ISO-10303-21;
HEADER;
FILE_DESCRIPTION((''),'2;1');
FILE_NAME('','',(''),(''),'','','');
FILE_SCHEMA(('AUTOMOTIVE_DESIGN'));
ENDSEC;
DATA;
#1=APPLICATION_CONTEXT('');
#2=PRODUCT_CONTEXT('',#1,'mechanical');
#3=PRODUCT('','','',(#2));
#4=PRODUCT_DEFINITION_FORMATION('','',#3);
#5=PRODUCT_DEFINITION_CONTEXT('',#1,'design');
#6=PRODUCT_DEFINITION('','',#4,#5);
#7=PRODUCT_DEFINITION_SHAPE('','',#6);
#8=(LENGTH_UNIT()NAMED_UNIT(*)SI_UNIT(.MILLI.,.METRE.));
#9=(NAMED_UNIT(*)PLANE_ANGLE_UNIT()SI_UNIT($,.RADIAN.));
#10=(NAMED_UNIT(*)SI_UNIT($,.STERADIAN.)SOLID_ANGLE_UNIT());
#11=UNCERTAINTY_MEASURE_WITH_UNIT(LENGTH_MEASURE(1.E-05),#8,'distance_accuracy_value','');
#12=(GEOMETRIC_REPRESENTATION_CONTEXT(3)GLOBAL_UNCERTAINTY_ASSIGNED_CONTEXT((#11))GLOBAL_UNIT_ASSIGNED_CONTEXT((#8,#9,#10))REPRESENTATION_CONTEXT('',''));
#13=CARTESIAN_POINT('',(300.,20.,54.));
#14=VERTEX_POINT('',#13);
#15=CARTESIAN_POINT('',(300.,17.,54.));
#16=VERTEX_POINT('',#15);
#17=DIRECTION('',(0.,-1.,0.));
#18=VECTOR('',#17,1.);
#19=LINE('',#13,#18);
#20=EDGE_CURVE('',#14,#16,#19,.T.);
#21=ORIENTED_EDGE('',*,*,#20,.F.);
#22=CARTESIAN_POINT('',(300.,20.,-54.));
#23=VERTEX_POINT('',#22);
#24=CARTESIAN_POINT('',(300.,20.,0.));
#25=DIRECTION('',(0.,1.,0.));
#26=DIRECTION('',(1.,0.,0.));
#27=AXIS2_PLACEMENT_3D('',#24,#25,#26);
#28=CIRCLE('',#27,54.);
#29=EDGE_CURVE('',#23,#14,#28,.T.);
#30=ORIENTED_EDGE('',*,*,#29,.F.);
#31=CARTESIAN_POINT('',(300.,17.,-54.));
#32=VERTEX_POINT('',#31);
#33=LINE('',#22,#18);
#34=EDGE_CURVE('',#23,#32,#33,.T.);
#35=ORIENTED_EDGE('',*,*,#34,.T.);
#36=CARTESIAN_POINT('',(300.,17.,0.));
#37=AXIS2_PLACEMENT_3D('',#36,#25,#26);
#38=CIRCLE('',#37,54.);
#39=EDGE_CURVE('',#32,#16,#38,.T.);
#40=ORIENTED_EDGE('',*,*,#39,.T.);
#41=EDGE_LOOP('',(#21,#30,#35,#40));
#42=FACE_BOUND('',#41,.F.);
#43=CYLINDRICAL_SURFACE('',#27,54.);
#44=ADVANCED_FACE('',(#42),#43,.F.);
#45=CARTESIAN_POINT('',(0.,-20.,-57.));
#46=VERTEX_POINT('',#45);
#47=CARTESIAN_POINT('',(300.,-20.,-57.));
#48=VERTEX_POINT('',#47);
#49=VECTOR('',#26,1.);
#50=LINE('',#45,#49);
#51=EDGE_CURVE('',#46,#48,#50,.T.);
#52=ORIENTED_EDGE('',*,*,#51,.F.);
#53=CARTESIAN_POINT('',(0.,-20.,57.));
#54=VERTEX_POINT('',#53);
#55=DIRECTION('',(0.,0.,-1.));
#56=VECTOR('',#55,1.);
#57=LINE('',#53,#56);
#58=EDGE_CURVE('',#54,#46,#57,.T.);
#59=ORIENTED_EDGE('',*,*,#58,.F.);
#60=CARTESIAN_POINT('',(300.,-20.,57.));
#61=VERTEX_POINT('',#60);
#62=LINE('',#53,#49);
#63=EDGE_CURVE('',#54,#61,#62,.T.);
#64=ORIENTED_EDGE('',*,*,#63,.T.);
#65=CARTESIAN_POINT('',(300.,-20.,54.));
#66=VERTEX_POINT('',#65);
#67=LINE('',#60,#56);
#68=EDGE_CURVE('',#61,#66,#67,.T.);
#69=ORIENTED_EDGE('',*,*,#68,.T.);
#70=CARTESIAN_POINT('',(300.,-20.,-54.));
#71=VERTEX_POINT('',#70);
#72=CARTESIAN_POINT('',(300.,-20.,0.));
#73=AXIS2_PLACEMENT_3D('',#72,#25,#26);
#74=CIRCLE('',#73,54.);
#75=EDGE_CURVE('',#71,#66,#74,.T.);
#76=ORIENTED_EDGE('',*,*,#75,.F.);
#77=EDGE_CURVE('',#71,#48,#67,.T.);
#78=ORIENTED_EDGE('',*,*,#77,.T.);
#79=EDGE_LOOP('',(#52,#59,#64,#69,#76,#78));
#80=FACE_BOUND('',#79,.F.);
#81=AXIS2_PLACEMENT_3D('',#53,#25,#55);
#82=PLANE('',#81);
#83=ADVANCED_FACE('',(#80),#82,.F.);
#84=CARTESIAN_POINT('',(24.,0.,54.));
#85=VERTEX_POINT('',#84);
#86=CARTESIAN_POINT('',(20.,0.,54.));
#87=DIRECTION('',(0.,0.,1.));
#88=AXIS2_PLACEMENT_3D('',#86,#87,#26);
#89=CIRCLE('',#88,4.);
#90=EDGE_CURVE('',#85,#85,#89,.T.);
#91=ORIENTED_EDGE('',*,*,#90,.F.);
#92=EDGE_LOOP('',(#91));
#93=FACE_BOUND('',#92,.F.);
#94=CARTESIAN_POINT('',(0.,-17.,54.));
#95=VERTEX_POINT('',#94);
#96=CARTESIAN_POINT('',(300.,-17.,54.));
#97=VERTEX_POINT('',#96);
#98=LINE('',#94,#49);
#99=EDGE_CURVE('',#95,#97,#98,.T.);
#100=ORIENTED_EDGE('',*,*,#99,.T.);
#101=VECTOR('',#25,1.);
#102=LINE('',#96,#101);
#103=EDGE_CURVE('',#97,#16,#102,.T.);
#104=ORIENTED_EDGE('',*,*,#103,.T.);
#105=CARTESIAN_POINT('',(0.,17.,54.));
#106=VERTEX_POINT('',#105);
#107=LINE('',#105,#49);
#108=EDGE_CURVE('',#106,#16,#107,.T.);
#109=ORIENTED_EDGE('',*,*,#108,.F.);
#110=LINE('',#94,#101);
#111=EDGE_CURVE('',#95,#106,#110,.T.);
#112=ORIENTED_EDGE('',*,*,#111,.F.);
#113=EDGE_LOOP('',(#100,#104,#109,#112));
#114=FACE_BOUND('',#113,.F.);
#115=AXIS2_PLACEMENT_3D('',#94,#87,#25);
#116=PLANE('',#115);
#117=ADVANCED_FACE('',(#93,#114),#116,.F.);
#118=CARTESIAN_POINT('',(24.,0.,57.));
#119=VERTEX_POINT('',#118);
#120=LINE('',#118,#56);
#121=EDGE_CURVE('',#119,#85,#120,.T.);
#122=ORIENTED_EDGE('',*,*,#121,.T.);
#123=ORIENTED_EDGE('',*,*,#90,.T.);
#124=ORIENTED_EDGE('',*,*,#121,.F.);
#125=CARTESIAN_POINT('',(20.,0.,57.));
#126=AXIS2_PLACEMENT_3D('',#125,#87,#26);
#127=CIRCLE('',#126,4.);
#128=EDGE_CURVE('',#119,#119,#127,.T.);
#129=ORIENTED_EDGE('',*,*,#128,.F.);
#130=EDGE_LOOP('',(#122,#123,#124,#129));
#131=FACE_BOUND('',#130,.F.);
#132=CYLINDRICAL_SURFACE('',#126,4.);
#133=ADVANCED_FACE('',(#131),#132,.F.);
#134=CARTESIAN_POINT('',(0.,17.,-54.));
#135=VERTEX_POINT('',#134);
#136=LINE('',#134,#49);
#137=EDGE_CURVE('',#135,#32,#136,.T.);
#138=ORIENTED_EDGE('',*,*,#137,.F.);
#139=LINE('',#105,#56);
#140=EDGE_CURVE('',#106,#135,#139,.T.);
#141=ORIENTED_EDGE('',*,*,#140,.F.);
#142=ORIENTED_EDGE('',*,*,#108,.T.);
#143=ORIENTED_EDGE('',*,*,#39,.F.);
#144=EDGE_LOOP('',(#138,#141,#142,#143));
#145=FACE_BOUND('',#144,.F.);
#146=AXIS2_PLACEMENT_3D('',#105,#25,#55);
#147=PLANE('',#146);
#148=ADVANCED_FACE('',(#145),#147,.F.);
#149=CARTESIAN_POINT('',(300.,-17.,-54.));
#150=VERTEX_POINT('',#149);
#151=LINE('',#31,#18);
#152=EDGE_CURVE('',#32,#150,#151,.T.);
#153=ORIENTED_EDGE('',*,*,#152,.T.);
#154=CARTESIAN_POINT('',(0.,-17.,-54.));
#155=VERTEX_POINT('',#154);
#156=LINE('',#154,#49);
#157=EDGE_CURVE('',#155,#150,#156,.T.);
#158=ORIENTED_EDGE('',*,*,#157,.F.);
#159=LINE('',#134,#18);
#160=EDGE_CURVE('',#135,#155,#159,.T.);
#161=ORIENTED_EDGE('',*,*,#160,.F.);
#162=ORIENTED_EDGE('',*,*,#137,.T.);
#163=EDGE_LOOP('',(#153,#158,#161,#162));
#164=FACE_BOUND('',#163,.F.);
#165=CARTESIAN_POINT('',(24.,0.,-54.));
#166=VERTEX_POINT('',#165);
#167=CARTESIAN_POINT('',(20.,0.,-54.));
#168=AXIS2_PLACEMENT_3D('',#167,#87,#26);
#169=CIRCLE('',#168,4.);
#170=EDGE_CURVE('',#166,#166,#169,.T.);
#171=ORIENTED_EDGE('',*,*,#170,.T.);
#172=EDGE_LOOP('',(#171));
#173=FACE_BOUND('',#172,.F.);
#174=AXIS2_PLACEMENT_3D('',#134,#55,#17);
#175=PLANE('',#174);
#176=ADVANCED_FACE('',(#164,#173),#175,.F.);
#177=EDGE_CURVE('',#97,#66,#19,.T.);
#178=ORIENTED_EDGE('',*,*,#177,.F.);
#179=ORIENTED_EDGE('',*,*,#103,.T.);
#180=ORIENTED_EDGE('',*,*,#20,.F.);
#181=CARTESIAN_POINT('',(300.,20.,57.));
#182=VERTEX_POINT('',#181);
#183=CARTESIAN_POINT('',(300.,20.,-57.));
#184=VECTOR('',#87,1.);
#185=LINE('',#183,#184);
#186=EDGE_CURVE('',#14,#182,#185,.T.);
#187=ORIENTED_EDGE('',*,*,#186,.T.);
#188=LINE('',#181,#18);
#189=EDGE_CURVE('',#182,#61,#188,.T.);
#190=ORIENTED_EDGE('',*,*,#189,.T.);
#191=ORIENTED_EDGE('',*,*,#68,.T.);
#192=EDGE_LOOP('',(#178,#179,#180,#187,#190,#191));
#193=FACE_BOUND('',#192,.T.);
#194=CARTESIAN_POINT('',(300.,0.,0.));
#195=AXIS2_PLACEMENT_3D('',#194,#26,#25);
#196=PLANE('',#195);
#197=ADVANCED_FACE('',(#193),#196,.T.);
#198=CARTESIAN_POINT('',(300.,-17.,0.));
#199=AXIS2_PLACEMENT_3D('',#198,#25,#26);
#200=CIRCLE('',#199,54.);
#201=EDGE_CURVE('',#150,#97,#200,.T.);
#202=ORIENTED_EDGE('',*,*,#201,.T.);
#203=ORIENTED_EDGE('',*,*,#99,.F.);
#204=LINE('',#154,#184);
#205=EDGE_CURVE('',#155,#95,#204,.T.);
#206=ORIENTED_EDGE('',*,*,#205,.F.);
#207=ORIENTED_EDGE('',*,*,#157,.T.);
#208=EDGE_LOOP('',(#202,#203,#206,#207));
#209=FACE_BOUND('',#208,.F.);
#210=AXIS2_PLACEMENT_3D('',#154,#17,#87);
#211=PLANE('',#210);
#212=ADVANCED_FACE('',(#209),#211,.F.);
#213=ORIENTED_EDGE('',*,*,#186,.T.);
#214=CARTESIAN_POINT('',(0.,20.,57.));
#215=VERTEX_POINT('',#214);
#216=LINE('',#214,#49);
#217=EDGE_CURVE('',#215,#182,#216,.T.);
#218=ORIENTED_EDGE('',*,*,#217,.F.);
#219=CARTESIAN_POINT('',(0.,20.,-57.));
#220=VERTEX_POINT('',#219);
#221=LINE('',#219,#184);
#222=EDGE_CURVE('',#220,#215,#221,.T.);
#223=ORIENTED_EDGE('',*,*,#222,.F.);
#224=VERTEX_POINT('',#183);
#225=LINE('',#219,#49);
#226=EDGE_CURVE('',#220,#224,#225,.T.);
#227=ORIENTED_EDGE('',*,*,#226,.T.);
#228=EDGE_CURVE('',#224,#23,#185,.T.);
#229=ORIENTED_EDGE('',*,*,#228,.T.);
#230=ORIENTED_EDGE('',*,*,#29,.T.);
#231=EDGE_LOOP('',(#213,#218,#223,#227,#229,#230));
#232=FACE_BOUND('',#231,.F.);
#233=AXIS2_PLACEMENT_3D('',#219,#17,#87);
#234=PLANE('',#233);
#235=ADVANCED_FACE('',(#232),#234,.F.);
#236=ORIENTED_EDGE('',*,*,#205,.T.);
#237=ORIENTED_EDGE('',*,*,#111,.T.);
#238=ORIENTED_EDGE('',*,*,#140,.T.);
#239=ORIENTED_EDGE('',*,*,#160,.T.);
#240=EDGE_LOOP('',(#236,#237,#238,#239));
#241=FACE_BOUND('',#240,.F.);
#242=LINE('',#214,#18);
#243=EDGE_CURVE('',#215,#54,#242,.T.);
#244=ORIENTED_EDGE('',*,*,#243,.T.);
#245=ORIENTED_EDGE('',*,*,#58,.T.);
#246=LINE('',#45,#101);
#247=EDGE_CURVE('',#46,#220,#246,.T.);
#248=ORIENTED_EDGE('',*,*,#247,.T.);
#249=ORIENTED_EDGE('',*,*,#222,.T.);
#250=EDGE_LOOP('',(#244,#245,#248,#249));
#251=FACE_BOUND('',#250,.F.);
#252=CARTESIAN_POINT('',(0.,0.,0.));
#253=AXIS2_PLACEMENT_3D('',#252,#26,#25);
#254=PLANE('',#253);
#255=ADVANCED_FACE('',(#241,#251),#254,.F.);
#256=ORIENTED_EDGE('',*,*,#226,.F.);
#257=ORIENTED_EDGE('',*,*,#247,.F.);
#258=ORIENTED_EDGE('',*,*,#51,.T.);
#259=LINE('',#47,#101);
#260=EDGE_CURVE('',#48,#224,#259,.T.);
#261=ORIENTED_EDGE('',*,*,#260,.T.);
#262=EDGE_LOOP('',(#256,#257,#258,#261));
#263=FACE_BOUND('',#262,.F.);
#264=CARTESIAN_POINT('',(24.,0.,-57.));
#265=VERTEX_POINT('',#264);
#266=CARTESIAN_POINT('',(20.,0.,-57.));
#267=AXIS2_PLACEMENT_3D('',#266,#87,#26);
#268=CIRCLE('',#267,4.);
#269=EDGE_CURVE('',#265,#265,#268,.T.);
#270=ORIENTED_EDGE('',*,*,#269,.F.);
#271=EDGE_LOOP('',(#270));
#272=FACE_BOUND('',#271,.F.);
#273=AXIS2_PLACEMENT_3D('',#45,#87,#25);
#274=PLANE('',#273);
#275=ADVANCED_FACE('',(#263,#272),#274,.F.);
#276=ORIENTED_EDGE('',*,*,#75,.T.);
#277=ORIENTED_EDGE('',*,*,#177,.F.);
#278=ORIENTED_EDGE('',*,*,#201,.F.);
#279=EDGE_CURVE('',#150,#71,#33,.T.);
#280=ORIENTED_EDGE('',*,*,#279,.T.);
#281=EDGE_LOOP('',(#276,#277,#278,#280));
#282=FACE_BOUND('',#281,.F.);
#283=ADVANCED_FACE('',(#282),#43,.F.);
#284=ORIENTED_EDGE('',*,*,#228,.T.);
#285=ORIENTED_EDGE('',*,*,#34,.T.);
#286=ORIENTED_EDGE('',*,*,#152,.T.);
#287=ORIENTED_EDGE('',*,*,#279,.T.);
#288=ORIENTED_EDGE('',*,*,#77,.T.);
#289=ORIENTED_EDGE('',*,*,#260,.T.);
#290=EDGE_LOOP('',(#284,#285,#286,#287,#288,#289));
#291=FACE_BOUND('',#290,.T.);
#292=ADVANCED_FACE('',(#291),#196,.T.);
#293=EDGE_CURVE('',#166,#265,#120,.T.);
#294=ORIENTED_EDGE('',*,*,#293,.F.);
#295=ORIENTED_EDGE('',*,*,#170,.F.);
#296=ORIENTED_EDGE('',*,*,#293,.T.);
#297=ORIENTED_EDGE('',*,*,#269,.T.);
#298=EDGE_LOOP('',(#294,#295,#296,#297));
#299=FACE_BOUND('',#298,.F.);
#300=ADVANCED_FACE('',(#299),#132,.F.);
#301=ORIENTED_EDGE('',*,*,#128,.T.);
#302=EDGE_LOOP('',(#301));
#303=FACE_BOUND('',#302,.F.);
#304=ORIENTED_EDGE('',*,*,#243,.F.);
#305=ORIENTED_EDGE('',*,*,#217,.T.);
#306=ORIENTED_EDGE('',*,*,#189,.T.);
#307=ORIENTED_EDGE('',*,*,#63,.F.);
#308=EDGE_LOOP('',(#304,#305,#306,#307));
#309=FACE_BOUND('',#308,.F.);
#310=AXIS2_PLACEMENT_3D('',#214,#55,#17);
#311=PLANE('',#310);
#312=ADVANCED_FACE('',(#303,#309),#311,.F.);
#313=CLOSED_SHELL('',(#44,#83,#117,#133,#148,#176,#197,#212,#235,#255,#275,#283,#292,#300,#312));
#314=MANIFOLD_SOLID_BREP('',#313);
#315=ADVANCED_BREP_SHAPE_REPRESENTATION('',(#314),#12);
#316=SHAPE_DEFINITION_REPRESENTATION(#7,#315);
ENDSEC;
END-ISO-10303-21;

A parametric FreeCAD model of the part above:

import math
import FreeCAD as App
import Part
import Sketcher

doc = App.newDocument("Part")
body = doc.addObject("PartDesign::Body", "Body")

# Sketch on YZ plane
sketch1 = body.newObject("Sketcher::SketchObject", "Sketch")
sketch1.AttachmentSupport = (doc.getObject("YZ_Plane"), [""])
sketch1.MapMode = "FlatFace"
sketch1.addGeometry(Part.LineSegment(App.Vector(20, -57, 0), App.Vector(20, 57, 0)), False)
sketch1.addGeometry(Part.LineSegment(App.Vector(20, 57, 0), App.Vector(-20, 57, 0)), False)
sketch1.addGeometry(Part.LineSegment(App.Vector(-20, 57, 0), App.Vector(-20, -57, 0)), False)
sketch1.addGeometry(Part.LineSegment(App.Vector(-20, -57, 0), App.Vector(20, -57, 0)), False)
sketch1.addGeometry(Part.LineSegment(App.Vector(-17, -54, 0), App.Vector(-17, 54, 0)), False)
sketch1.addGeometry(Part.LineSegment(App.Vector(-17, 54, 0), App.Vector(17, 54, 0)), False)
sketch1.addGeometry(Part.LineSegment(App.Vector(17, 54, 0), App.Vector(17, -54, 0)), False)
sketch1.addGeometry(Part.LineSegment(App.Vector(17, -54, 0), App.Vector(-17, -54, 0)), False)
sketch1.addConstraint(Sketcher.Constraint("Coincident", 0, 2, 1, 1))
sketch1.addConstraint(Sketcher.Constraint("Coincident", 1, 2, 2, 1))
sketch1.addConstraint(Sketcher.Constraint("Coincident", 2, 2, 3, 1))
sketch1.addConstraint(Sketcher.Constraint("Coincident", 3, 2, 0, 1))
sketch1.addConstraint(Sketcher.Constraint("Coincident", 4, 2, 5, 1))
sketch1.addConstraint(Sketcher.Constraint("Coincident", 5, 2, 6, 1))
sketch1.addConstraint(Sketcher.Constraint("Coincident", 6, 2, 7, 1))
sketch1.addConstraint(Sketcher.Constraint("Coincident", 7, 2, 4, 1))
sketch1.addConstraint(Sketcher.Constraint("Vertical", 0))
sketch1.addConstraint(Sketcher.Constraint("Horizontal", 1))
sketch1.addConstraint(Sketcher.Constraint("Vertical", 2))
sketch1.addConstraint(Sketcher.Constraint("Horizontal", 3))
sketch1.addConstraint(Sketcher.Constraint("Vertical", 4))
sketch1.addConstraint(Sketcher.Constraint("Horizontal", 5))
sketch1.addConstraint(Sketcher.Constraint("Vertical", 6))
sketch1.addConstraint(Sketcher.Constraint("Horizontal", 7))
sketch1.addConstraint(Sketcher.Constraint("Symmetric", 0, 2, 2, 2, -1, 1))
sketch1.addConstraint(Sketcher.Constraint("Symmetric", 4, 2, 6, 2, -1, 1))
sketch1.addConstraint(Sketcher.Constraint("DistanceX", 1, 2, 1, 1, 40.0))
sketch1.addConstraint(Sketcher.Constraint("DistanceY", 0, 1, 0, 2, 114.0))
sketch1.addConstraint(Sketcher.Constraint("DistanceX", 1, 2, 4, 2, 3.0))
sketch1.addConstraint(Sketcher.Constraint("DistanceY", 4, 2, 1, 2, 3.0))
pad1 = body.newObject("PartDesign::Pad", "Pad")
pad1.Profile = sketch1
pad1.Length = 300

# Sketch on XZ plane
sketch2 = body.newObject("Sketcher::SketchObject", "Sketch001")
sketch2.AttachmentSupport = (doc.getObject("XZ_Plane"), [""])
sketch2.MapMode = "FlatFace"
sketch2.AttachmentOffset = App.Placement(App.Vector(0, 0, -20), App.Rotation())
sketch2.addGeometry(Part.LineSegment(App.Vector(300, 54, 0), App.Vector(300, -54, 0)), False)
sketch2.addGeometry(Part.ArcOfCircle(Part.Circle(App.Vector(300, 0, 0), App.Vector(0, 0, 1), 54), math.radians(90), math.radians(270)), False)
sketch2.addConstraint(Sketcher.Constraint("Coincident", 0, 1, 1, 1))
sketch2.addConstraint(Sketcher.Constraint("Coincident", 1, 2, 0, 2))
sketch2.addConstraint(Sketcher.Constraint("Vertical", 0))
sketch2.addConstraint(Sketcher.Constraint("PointOnObject", 1, 3, -1))
sketch2.addConstraint(Sketcher.Constraint("Vertical", 1, 3, 0, 1))
sketch2.addConstraint(Sketcher.Constraint("Radius", 1, 54.0))
sketch2.addConstraint(Sketcher.Constraint("DistanceX", -1, 1, 1, 3, 300.0))
pocket1 = body.newObject("PartDesign::Pocket", "Pocket")
pocket1.Profile = sketch2
pocket1.Type = "ThroughAll"
pocket1.Reversed = True

# Sketch on XY plane
sketch3 = body.newObject("Sketcher::SketchObject", "Sketch002")
sketch3.AttachmentSupport = (doc.getObject("XY_Plane"), [""])
sketch3.MapMode = "FlatFace"
sketch3.AttachmentOffset = App.Placement(App.Vector(0, 0, 57), App.Rotation())
sketch3.addGeometry(Part.Circle(App.Vector(20, 0, 0), App.Vector(0, 0, 1), 4), False)
sketch3.addConstraint(Sketcher.Constraint("PointOnObject", 0, 3, -1))
sketch3.addConstraint(Sketcher.Constraint("Diameter", 0, 8.0))
sketch3.addConstraint(Sketcher.Constraint("DistanceX", -1, 1, 0, 3, 20.0))
pocket2 = body.newObject("PartDesign::Pocket", "Pocket001")
pocket2.Profile = sketch3
pocket2.Type = "ThroughAll"

doc.recompute()
